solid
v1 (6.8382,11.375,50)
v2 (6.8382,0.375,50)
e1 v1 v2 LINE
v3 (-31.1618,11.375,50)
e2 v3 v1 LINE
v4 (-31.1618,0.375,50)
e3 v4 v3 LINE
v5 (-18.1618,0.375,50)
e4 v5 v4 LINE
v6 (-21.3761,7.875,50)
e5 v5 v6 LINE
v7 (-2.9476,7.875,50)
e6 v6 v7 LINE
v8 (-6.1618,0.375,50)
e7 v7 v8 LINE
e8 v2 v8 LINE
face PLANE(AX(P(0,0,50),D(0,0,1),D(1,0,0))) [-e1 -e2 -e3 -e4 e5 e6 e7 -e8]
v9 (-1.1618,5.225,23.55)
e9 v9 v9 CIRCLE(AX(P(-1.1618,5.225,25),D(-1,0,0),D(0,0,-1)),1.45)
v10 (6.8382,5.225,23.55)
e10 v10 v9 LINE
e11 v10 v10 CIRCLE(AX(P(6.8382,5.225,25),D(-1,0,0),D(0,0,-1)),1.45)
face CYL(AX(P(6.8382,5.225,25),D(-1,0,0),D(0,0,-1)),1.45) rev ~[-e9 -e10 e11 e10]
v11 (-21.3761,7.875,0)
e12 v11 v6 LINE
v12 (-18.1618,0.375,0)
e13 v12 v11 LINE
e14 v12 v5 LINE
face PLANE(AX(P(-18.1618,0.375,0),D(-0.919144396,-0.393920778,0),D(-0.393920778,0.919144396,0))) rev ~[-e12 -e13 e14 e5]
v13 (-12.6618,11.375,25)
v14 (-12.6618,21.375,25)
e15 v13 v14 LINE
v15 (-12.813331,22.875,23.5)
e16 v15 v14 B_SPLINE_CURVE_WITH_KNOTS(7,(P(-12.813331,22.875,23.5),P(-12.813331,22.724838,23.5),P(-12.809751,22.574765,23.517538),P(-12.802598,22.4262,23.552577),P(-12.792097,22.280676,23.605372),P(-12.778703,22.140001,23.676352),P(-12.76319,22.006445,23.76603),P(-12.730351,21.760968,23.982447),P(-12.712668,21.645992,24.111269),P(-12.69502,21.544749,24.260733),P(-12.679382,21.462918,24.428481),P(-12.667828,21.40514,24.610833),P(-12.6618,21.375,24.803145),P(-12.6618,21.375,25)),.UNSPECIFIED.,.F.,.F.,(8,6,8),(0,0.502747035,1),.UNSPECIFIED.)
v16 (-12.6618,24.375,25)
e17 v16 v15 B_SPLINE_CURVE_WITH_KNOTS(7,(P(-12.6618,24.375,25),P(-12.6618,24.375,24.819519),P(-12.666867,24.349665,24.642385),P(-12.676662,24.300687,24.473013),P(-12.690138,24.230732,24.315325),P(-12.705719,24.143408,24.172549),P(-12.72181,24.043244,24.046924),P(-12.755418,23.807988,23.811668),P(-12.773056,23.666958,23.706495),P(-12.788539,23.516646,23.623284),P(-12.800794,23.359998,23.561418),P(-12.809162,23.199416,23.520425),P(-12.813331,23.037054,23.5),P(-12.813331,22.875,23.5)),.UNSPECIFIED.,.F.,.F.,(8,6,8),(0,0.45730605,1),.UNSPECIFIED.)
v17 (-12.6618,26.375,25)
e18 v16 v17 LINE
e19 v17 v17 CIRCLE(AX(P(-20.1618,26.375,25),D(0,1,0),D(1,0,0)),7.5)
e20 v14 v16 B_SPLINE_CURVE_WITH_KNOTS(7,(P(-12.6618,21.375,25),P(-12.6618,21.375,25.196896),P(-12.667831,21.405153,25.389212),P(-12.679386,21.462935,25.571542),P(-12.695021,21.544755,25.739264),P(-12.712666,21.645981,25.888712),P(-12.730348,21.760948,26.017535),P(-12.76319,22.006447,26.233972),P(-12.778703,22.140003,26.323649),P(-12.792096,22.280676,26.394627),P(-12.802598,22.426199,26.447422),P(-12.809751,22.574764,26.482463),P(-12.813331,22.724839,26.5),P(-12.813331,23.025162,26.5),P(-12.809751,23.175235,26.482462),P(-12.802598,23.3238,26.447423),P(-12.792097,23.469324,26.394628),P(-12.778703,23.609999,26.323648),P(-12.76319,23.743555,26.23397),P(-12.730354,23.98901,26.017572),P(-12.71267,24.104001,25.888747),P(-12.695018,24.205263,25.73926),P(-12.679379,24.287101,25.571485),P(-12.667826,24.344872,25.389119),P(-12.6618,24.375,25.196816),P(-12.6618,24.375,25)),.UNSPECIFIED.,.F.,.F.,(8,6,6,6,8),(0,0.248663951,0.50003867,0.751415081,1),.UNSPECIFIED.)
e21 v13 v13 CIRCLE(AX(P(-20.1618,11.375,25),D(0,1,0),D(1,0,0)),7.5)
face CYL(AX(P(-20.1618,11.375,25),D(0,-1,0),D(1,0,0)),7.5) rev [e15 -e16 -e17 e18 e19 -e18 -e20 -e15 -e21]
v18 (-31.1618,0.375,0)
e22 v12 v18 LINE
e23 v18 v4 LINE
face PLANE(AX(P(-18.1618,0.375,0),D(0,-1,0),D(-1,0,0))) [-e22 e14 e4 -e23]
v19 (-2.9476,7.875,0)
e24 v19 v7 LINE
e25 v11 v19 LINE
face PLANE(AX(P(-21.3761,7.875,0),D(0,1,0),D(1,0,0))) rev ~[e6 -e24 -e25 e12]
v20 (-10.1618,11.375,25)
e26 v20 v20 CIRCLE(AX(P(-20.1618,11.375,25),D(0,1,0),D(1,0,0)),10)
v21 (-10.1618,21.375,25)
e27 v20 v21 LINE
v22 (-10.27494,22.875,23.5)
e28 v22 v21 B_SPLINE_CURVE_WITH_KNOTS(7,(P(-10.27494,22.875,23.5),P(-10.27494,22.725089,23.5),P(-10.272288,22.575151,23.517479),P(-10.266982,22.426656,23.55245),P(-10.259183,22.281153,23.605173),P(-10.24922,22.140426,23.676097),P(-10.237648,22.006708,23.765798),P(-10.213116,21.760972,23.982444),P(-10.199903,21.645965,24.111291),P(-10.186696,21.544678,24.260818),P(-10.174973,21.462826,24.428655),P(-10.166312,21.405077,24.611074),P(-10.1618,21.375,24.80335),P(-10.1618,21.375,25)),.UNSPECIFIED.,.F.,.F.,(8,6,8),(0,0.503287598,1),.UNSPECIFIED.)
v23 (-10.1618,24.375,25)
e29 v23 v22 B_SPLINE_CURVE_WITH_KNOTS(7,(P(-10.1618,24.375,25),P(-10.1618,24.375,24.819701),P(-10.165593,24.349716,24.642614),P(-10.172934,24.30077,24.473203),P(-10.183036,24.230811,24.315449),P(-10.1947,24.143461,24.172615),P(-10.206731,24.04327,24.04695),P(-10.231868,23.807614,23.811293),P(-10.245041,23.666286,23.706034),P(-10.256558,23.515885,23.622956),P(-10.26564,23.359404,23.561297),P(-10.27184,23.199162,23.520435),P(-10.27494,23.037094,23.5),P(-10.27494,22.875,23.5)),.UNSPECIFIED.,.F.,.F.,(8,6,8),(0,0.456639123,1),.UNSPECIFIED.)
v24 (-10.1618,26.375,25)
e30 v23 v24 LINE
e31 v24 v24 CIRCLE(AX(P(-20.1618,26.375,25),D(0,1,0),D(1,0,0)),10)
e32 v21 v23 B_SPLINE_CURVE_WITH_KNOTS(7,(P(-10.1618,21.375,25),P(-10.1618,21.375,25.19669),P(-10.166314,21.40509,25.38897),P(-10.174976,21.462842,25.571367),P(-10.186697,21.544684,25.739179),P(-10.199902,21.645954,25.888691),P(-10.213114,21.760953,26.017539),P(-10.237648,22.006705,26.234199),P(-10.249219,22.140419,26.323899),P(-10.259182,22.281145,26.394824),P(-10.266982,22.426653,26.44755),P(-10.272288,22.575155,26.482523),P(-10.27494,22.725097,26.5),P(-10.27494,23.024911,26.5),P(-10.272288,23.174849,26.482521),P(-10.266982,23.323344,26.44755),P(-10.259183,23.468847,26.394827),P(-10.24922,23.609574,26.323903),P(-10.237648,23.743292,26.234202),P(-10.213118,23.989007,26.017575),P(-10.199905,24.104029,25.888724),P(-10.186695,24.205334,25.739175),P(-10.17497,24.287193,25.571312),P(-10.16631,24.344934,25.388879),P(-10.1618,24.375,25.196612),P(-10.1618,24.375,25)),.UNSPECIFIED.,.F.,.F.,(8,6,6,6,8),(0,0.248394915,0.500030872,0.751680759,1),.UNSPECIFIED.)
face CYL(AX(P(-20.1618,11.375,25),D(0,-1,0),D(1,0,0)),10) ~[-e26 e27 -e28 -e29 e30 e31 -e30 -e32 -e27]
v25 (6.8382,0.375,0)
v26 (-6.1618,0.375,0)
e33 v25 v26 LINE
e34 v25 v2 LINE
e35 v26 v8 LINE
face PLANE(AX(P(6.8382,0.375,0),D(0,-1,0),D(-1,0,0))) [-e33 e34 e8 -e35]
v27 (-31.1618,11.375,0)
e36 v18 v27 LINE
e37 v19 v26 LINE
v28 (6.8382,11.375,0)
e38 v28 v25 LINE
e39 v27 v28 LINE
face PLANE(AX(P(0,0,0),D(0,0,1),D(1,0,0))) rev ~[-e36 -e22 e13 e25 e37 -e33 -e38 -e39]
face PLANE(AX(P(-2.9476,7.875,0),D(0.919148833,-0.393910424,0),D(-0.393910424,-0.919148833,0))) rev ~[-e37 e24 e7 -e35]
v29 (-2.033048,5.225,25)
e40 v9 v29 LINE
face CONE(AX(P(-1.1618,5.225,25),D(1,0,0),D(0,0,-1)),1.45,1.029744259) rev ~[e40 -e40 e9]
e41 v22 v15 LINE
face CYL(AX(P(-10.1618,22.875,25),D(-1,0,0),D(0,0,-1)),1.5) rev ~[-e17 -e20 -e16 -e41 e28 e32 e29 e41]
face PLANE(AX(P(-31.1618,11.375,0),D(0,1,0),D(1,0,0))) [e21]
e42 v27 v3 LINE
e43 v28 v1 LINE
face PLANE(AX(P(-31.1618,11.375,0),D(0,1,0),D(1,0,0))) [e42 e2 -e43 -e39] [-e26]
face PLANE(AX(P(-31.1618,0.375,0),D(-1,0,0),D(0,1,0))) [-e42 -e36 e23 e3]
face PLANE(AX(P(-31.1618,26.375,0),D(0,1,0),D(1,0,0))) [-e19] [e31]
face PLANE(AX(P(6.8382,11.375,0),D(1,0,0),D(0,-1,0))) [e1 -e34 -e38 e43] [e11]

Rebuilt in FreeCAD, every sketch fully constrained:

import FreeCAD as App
import Part
import Sketcher

V = App.Vector
Q = App.Units.Quantity

doc = App.newDocument("Part")
body = doc.addObject("PartDesign::Body", "Body")

sketch1 = doc.addObject("Sketcher::SketchObject", "Sketch")
body.addObject(sketch1)
sketch1.AttachmentSupport = (doc.XY_Plane, [""])
sketch1.MapMode = "FlatFace"
sketch1.addGeometry([
    Part.LineSegment(V(-31.1618, 0.375, 0), V(-18.1618, 0.375, 0)),
    Part.LineSegment(V(-18.1618, 0.375, 0), V(-21.3761, 7.875, 0)),
    Part.LineSegment(V(-21.3761, 7.875, 0), V(-2.9476, 7.875, 0)),
    Part.LineSegment(V(-2.9476, 7.875, 0), V(-6.1618, 0.375, 0)),
    Part.LineSegment(V(-6.1618, 0.375, 0), V(6.8382, 0.375, 0)),
    Part.LineSegment(V(6.8382, 0.375, 0), V(6.8382, 11.375, 0)),
    Part.LineSegment(V(6.8382, 11.375, 0), V(-31.1618, 11.375, 0)),
    Part.LineSegment(V(-31.1618, 11.375, 0), V(-31.1618, 0.375, 0)),
], False)
sketch1.addConstraint([
    Sketcher.Constraint("Coincident", 0, 2, 1, 1),
    Sketcher.Constraint("Coincident", 1, 2, 2, 1),
    Sketcher.Constraint("Coincident", 2, 2, 3, 1),
    Sketcher.Constraint("Coincident", 3, 2, 4, 1),
    Sketcher.Constraint("Coincident", 4, 2, 5, 1),
    Sketcher.Constraint("Coincident", 5, 2, 6, 1),
    Sketcher.Constraint("Coincident", 6, 2, 7, 1),
    Sketcher.Constraint("Coincident", 7, 2, 0, 1),
    Sketcher.Constraint("Horizontal", 0),
    Sketcher.Constraint("Horizontal", 2),
    Sketcher.Constraint("Horizontal", 4),
    Sketcher.Constraint("Vertical", 5),
    Sketcher.Constraint("Horizontal", 6),
    Sketcher.Constraint("Vertical", 7),
    Sketcher.Constraint("Horizontal", 0, 2, 3, 2),
    Sketcher.Constraint("Equal", 0, 4),
    Sketcher.Constraint("Equal", 1, 3),
    Sketcher.Constraint("DistanceX", 0, 1, 0, 2, Q("13 mm")),
    Sketcher.Constraint("DistanceX", 6, 2, 6, 1, Q("38 mm")),
    Sketcher.Constraint("DistanceY", 5, 1, 5, 2, Q("11 mm")),
    Sketcher.Constraint("DistanceY", 0, 2, 1, 2, Q("7.5 mm")),
    Sketcher.Constraint("DistanceX", 2, 1, 2, 2, Q("18.4285 mm")),
    Sketcher.Constraint("DistanceY", -1, 1, 0, 2, Q("0.375 mm")),
    Sketcher.Constraint("DistanceX", 1, 2, -1, 1, Q("21.376 mm")),
])
pad1 = doc.addObject("PartDesign::Pad", "Pad")
body.addObject(pad1)
pad1.Profile = sketch1
pad1.Length = 50

sketch2 = doc.addObject("Sketcher::SketchObject", "Sketch001")
body.addObject(sketch2)
sketch2.AttachmentSupport = (doc.YZ_Plane, [""])
sketch2.MapMode = "FlatFace"
sketch2.AttachmentOffset = App.Placement(V(0, 0, 6.8382), App.Rotation())
sketch2.addGeometry(Part.Circle(V(5.225, 25, 0), V(0, 0, 1), 1.45), False)
sketch2.addConstraint([
    Sketcher.Constraint("Diameter", 0, Q("2.9 mm")),
    Sketcher.Constraint("DistanceY", -1, 1, 0, 3, Q("25 mm")),
    Sketcher.Constraint("DistanceX", -1, 1, 0, 3, Q("5.225 mm")),
])
doc.recompute()
hole = doc.addObject("PartDesign::Hole", "Hole")
body.addObject(hole)
hole.Profile = sketch2
hole.ThreadType = "None"
hole.Diameter = 2.9
hole.DepthType = "Dimension"
hole.Depth = 8
hole.DrillPoint = "Angled"
hole.DrillPointAngle = 118

sketch3 = doc.addObject("Sketcher::SketchObject", "Sketch002")
body.addObject(sketch3)
sketch3.AttachmentSupport = (doc.XZ_Plane, [""])
sketch3.MapMode = "FlatFace"
sketch3.AttachmentOffset = App.Placement(V(0, 0, -11.375), App.Rotation())
sketch3.addGeometry([
    Part.Circle(V(-20.1618, 25, 0), V(0, 0, 1), 10),
    Part.Circle(V(-20.1618, 25, 0), V(0, 0, 1), 7.5),
], False)
sketch3.addConstraint([
    Sketcher.Constraint("Coincident", 1, 3, 0, 3),
    Sketcher.Constraint("Diameter", 0, Q("20 mm")),
    Sketcher.Constraint("Diameter", 1, Q("15 mm")),
    Sketcher.Constraint("DistanceY", -1, 1, 0, 3, Q("25 mm")),
    Sketcher.Constraint("DistanceX", 0, 3, -1, 1, Q("20.1618 mm")),
])
pad2 = doc.addObject("PartDesign::Pad", "Pad001")
body.addObject(pad2)
pad2.Profile = sketch3
pad2.Length = 15
pad2.Reversed = True

sketch4 = doc.addObject("Sketcher::SketchObject", "Sketch003")
body.addObject(sketch4)
sketch4.AttachmentSupport = (doc.YZ_Plane, [""])
sketch4.MapMode = "FlatFace"
sketch4.AttachmentOffset = App.Placement(V(0, 0, -10.1618), App.Rotation())
sketch4.addGeometry(Part.Circle(V(22.875, 25, 0), V(0, 0, 1), 1.5), False)
sketch4.addConstraint([
    Sketcher.Constraint("Diameter", 0, Q("3 mm")),
    Sketcher.Constraint("DistanceY", -1, 1, 0, 3, Q("25 mm")),
    Sketcher.Constraint("DistanceX", -1, 1, 0, 3, Q("22.875 mm")),
])
doc.recompute()
hole2 = doc.addObject("PartDesign::Hole", "Hole001")
body.addObject(hole2)
hole2.Profile = sketch4
hole2.ThreadType = "None"
hole2.Diameter = 3
hole2.DepthType = "Dimension"
hole2.Depth = 8
hole2.DrillPoint = "Angled"
hole2.DrillPointAngle = 118

doc.recompute()
